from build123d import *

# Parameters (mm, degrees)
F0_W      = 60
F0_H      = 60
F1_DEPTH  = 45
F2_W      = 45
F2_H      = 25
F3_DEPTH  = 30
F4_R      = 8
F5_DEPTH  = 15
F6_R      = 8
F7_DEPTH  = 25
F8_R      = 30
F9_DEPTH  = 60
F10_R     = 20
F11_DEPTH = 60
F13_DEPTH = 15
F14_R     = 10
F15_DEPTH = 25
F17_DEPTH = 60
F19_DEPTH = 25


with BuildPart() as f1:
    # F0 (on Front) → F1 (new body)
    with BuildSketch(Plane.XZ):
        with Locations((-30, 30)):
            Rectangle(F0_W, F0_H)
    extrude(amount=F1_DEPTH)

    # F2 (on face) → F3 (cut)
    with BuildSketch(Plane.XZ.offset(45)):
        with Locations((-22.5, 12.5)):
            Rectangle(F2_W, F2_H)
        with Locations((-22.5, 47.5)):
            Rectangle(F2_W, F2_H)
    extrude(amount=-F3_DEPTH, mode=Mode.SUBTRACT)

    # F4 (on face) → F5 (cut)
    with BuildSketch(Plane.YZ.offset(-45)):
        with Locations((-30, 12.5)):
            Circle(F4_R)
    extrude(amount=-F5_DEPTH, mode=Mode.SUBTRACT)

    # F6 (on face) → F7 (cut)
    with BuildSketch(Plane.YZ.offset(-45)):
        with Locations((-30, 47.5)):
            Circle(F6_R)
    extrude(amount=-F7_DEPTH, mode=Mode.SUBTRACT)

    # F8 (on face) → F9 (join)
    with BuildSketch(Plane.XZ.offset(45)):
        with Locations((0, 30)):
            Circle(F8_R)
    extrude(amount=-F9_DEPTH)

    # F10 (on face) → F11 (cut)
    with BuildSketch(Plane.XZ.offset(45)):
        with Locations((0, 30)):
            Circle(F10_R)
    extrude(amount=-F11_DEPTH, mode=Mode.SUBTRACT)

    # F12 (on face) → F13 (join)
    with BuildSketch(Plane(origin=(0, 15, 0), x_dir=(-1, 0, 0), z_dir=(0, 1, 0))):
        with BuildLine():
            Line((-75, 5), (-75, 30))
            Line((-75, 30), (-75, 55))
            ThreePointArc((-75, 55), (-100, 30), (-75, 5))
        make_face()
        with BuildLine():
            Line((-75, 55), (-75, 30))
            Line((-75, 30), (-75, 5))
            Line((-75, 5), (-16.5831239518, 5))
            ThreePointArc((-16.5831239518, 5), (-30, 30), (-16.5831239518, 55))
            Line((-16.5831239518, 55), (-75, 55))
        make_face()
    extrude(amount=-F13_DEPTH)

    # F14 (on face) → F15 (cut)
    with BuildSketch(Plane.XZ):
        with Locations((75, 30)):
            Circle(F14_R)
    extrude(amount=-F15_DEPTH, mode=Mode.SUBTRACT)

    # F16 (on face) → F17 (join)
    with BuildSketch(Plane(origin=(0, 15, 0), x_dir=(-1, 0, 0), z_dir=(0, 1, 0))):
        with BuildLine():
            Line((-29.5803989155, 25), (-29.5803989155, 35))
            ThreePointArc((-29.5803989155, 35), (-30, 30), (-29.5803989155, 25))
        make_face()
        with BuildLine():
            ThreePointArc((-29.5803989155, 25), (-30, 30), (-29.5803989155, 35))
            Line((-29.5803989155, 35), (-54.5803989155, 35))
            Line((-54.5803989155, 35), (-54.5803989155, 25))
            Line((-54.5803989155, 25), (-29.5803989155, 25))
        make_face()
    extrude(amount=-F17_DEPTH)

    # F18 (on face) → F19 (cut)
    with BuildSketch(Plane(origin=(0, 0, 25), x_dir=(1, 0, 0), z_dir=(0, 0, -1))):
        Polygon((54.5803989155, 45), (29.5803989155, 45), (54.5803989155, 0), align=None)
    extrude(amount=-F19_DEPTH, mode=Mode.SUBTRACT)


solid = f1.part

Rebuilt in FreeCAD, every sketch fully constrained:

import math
import FreeCAD as App
import Part
import Sketcher


def add_polygon(sketch, points):
    """Adds a closed chain of lines whose ends are joined by coincident constraints."""
    first, n = sketch.GeometryCount, len(points)
    for a, b in zip(points, points[1:] + points[:1]):
        sketch.addGeometry(Part.LineSegment(App.Vector(*a, 0), App.Vector(*b, 0)), False)
    for i in range(n):
        sketch.addConstraint(Sketcher.Constraint("Coincident", first + i, 2, first + (i + 1) % n, 1))

doc = App.newDocument("Part")
body = doc.addObject("PartDesign::Body", "Body")

# Sketch on XZ plane
sketch1 = body.newObject("Sketcher::SketchObject", "Sketch")
sketch1.AttachmentSupport = (doc.getObject("XZ_Plane"), [""])
sketch1.MapMode = "FlatFace"
add_polygon(sketch1, [(-60, 60), (-60, 0), (0, 0), (0, 60)])  # lines 0-3
sketch1.addConstraint([
    Sketcher.Constraint("Vertical", 0),
    Sketcher.Constraint("Horizontal", 1),
    Sketcher.Constraint("Vertical", 2),
    Sketcher.Constraint("Horizontal", 3),
    Sketcher.Constraint("Coincident", 1, 2, -1, 1),
    Sketcher.Constraint("Equal", 3, 0),
    Sketcher.Constraint("DistanceX", 1, 1, 1, 2, 60.0),
])
pad1 = body.newObject("PartDesign::Pad", "Pad")
pad1.Profile = sketch1
pad1.Length = 45

# Sketch on XZ plane
sketch2 = body.newObject("Sketcher::SketchObject", "Sketch001")
sketch2.AttachmentSupport = (doc.getObject("XZ_Plane"), [""])
sketch2.MapMode = "FlatFace"
sketch2.AttachmentOffset = App.Placement(App.Vector(0, 0, 45), App.Rotation())
add_polygon(sketch2, [(-45, 25), (-45, 0), (0, 0), (0, 25)])  # lines 0-3
add_polygon(sketch2, [(-45, 60), (-45, 35), (0, 35), (0, 60)])  # lines 4-7
sketch2.addConstraint([
    Sketcher.Constraint("Vertical", 0),
    Sketcher.Constraint("Horizontal", 1),
    Sketcher.Constraint("Vertical", 2),
    Sketcher.Constraint("Horizontal", 3),
    Sketcher.Constraint("Vertical", 4),
    Sketcher.Constraint("Horizontal", 5),
    Sketcher.Constraint("Vertical", 6),
    Sketcher.Constraint("Horizontal", 7),
    Sketcher.Constraint("Coincident", 1, 2, -1, 1),
    Sketcher.Constraint("PointOnObject", 5, 2, -2),
    Sketcher.Constraint("Vertical", 3, 2, 4, 2),
    Sketcher.Constraint("Equal", 2, 4),
    Sketcher.Constraint("DistanceX", 1, 1, 1, 2, 45.0),
    Sketcher.Constraint("DistanceY", 0, 2, 0, 1, 25.0),
    Sketcher.Constraint("DistanceY", -1, 1, 4, 2, 35.0),
])
pocket1 = body.newObject("PartDesign::Pocket", "Pocket")
pocket1.Profile = sketch2
pocket1.Length = 30

# Sketch on YZ plane
sketch3 = body.newObject("Sketcher::SketchObject", "Sketch002")
sketch3.AttachmentSupport = (doc.getObject("YZ_Plane"), [""])
sketch3.MapMode = "FlatFace"
sketch3.AttachmentOffset = App.Placement(App.Vector(0, 0, -45), App.Rotation())
sketch3.addGeometry(Part.Circle(App.Vector(-30, 12, 0), App.Vector(0, 0, 1), 8), False)
sketch3.addConstraint([
    Sketcher.Constraint("Diameter", 0, 16.0),
    Sketcher.Constraint("DistanceX", 0, 3, -1, 1, 30.0),
    Sketcher.Constraint("DistanceY", -1, 1, 0, 3, 12.5),
])
pocket2 = body.newObject("PartDesign::Pocket", "Pocket001")
pocket2.Profile = sketch3
pocket2.Length = 15

# Sketch on YZ plane
sketch4 = body.newObject("Sketcher::SketchObject", "Sketch003")
sketch4.AttachmentSupport = (doc.getObject("YZ_Plane"), [""])
sketch4.MapMode = "FlatFace"
sketch4.AttachmentOffset = App.Placement(App.Vector(0, 0, -45), App.Rotation())
sketch4.addGeometry(Part.Circle(App.Vector(-30, 48, 0), App.Vector(0, 0, 1), 8), False)
sketch4.addConstraint([
    Sketcher.Constraint("Diameter", 0, 16.0),
    Sketcher.Constraint("DistanceX", 0, 3, -1, 1, 30.0),
    Sketcher.Constraint("DistanceY", -1, 1, 0, 3, 47.5),
])
pocket3 = body.newObject("PartDesign::Pocket", "Pocket002")
pocket3.Profile = sketch4
pocket3.Length = 25

# Sketch on XZ plane
sketch5 = body.newObject("Sketcher::SketchObject", "Sketch004")
sketch5.AttachmentSupport = (doc.getObject("XZ_Plane"), [""])
sketch5.MapMode = "FlatFace"
sketch5.AttachmentOffset = App.Placement(App.Vector(0, 0, 45), App.Rotation())
sketch5.addGeometry(Part.Circle(App.Vector(0, 30, 0), App.Vector(0, 0, 1), 30), False)
sketch5.addConstraint([
    Sketcher.Constraint("PointOnObject", 0, 3, -2),
    Sketcher.Constraint("Diameter", 0, 60.0),
    Sketcher.Constraint("DistanceY", -1, 1, 0, 3, 30.0),
])
pad2 = body.newObject("PartDesign::Pad", "Pad001")
pad2.Profile = sketch5
pad2.Length = 60
pad2.Reversed = True

# Sketch on XZ plane
sketch6 = body.newObject("Sketcher::SketchObject", "Sketch005")
sketch6.AttachmentSupport = (doc.getObject("XZ_Plane"), [""])
sketch6.MapMode = "FlatFace"
sketch6.AttachmentOffset = App.Placement(App.Vector(0, 0, 45), App.Rotation())
sketch6.addGeometry(Part.Circle(App.Vector(0, 30, 0), App.Vector(0, 0, 1), 20), False)
sketch6.addConstraint([
    Sketcher.Constraint("PointOnObject", 0, 3, -2),
    Sketcher.Constraint("Diameter", 0, 40.0),
    Sketcher.Constraint("DistanceY", -1, 1, 0, 3, 30.0),
])
pocket4 = body.newObject("PartDesign::Pocket", "Pocket003")
pocket4.Profile = sketch6
pocket4.Length = 60

# Sketch on XZ plane
sketch7 = body.newObject("Sketcher::SketchObject", "Sketch006")
sketch7.AttachmentSupport = (doc.getObject("XZ_Plane"), [""])
sketch7.MapMode = "FlatFace"
sketch7.AttachmentOffset = App.Placement(App.Vector(0, 0, -15), App.Rotation())
sketch7.addGeometry([
    Part.ArcOfCircle(Part.Circle(App.Vector(75, 30, 0), App.Vector(0, 0, 1), 25), math.radians(-90), math.radians(90)),
    Part.LineSegment(App.Vector(75, 5, 0), App.Vector(17, 5, 0)),
    Part.ArcOfCircle(Part.Circle(App.Vector(0, 30, 0), App.Vector(0, 0, 1), 30), math.radians(-56), math.radians(56)),
    Part.LineSegment(App.Vector(17, 55, 0), App.Vector(75, 55, 0)),
], False)
sketch7.addConstraint([
    Sketcher.Constraint("Tangent", 0, 1, 1, 1),
    Sketcher.Constraint("Coincident", 1, 2, 2, 1),
    Sketcher.Constraint("Coincident", 2, 2, 3, 1),
    Sketcher.Constraint("Tangent", 3, 2, 0, 2),
    Sketcher.Constraint("Horizontal", 1),
    Sketcher.Constraint("Horizontal", 3),
    Sketcher.Constraint("PointOnObject", 2, 3, -2),
    Sketcher.Constraint("Horizontal", 0, 3, 2, 3),
    Sketcher.Constraint("Radius", 0, 25.0),
    Sketcher.Constraint("Radius", 2, 30.0),
    Sketcher.Constraint("DistanceX", -1, 1, 0, 3, 75.0),
    Sketcher.Constraint("DistanceY", -1, 1, 0, 3, 30.0),
])
pad3 = body.newObject("PartDesign::Pad", "Pad002")
pad3.Profile = sketch7
pad3.Length = 15

# Sketch on XZ plane
sketch8 = body.newObject("Sketcher::SketchObject", "Sketch007")
sketch8.AttachmentSupport = (doc.getObject("XZ_Plane"), [""])
sketch8.MapMode = "FlatFace"
sketch8.addGeometry(Part.Circle(App.Vector(75, 30, 0), App.Vector(0, 0, 1), 10), False)
sketch8.addConstraint([
    Sketcher.Constraint("Diameter", 0, 20.0),
    Sketcher.Constraint("DistanceX", -1, 1, 0, 3, 75.0),
    Sketcher.Constraint("DistanceY", -1, 1, 0, 3, 30.0),
])
pocket5 = body.newObject("PartDesign::Pocket", "Pocket004")
pocket5.Profile = sketch8
pocket5.Length = 25

# Sketch on XZ plane
sketch9 = body.newObject("Sketcher::SketchObject", "Sketch008")
sketch9.AttachmentSupport = (doc.getObject("XZ_Plane"), [""])
sketch9.MapMode = "FlatFace"
sketch9.AttachmentOffset = App.Placement(App.Vector(0, 0, -15), App.Rotation())
add_polygon(sketch9, [(30, 25), (30, 35), (55, 35), (55, 25)])  # lines 0-3
sketch9.addConstraint([
    Sketcher.Constraint("Vertical", 0),
    Sketcher.Constraint("Horizontal", 1),
    Sketcher.Constraint("Vertical", 2),
    Sketcher.Constraint("Horizontal", 3),
    Sketcher.Constraint("DistanceX", 1, 1, 1, 2, 25.0),
    Sketcher.Constraint("DistanceY", 0, 1, 0, 2, 10.0),
    Sketcher.Constraint("DistanceY", -1, 1, 0, 2, 35.0),
    Sketcher.Constraint("DistanceX", -1, 1, 0, 2, 29.580399),
])
pad4 = body.newObject("PartDesign::Pad", "Pad003")
pad4.Profile = sketch9
pad4.Length = 60

# Sketch on XY plane
sketch10 = body.newObject("Sketcher::SketchObject", "Sketch009")
sketch10.AttachmentSupport = (doc.getObject("XY_Plane"), [""])
sketch10.MapMode = "FlatFace"
sketch10.AttachmentOffset = App.Placement(App.Vector(0, 0, 25), App.Rotation())
add_polygon(sketch10, [(55, -45), (30, -45), (55, 0)])  # lines 0-2
sketch10.addConstraint([
    Sketcher.Constraint("Horizontal", 0),
    Sketcher.Constraint("Vertical", 2),
    Sketcher.Constraint("PointOnObject", 1, 2, -1),
    Sketcher.Constraint("DistanceX", 0, 2, 0, 1, 25.0),
    Sketcher.Constraint("DistanceY", 2, 2, 2, 1, 45.0),
    Sketcher.Constraint("DistanceX", -1, 1, 0, 2, 29.580399),
])
pocket6 = body.newObject("PartDesign::Pocket", "Pocket005")
pocket6.Profile = sketch10
pocket6.Length = 25
pocket6.Reversed = True

doc.recompute()
